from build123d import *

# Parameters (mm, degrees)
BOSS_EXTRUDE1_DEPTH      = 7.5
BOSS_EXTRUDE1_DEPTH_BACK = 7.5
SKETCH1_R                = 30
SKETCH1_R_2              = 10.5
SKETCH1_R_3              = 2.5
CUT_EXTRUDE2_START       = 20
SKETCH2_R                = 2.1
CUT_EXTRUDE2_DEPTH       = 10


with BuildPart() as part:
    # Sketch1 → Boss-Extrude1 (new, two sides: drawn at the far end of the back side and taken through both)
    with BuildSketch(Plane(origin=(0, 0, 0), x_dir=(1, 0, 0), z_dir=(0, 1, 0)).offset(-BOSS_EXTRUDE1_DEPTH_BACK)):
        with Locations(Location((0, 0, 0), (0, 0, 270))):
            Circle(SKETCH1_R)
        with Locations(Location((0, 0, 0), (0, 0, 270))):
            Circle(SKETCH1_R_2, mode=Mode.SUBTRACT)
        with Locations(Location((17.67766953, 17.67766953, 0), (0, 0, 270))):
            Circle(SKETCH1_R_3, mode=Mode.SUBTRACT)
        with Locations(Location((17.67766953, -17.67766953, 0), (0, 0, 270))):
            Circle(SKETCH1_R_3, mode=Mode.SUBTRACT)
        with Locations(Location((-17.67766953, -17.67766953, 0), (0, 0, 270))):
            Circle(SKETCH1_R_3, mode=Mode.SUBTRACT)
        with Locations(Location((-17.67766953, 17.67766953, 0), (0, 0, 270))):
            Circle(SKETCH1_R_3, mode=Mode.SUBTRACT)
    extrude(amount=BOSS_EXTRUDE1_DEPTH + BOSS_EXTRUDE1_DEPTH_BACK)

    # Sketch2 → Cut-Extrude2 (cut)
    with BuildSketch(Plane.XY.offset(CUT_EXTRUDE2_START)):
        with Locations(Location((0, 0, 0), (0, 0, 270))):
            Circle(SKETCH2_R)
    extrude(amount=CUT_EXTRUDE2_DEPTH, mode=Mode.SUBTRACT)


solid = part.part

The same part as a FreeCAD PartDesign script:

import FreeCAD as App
import Part
import Sketcher

V = App.Vector
Q = App.Units.Quantity

doc = App.newDocument("Part")
body = doc.addObject("PartDesign::Body", "Body")

# Sketch on XZ plane
sketch1 = body.newObject("Sketcher::SketchObject", "Sketch")
sketch1.AttachmentSupport = (doc.getObject("XZ_Plane"), [""])
sketch1.MapMode = "FlatFace"
sketch1.addGeometry([
    Part.Circle(V(0, 0, 0), V(0, 0, 1), 30),  # 0
    Part.Circle(V(-17.67767, -17.67767, 0), V(0, 0, 1), 2.5),  # 1
    Part.Circle(V(-17.67767, 17.67767, 0), V(0, 0, 1), 2.5),  # 2
    Part.Circle(V(17.67767, -17.67767, 0), V(0, 0, 1), 2.5),  # 3
    Part.Circle(V(0, 0, 0), V(0, 0, 1), 10.5),  # 4
    Part.Circle(V(17.67767, 17.67767, 0), V(0, 0, 1), 2.5),  # 5
], False)
sketch1.addConstraint([
    Sketcher.Constraint("Coincident", 0, 3, -1, 1),
    Sketcher.Constraint("Coincident", 4, 3, -1, 1),
    Sketcher.Constraint("Equal", 1, 2),
    Sketcher.Constraint("Equal", 2, 3),
    Sketcher.Constraint("Equal", 3, 5),
    Sketcher.Constraint("Symmetric", 2, 3, 3, 3, -1, 1),
    Sketcher.Constraint("Symmetric", 1, 3, 5, 3, -1, 1),
    Sketcher.Constraint("Symmetric", 1, 3, 3, 3, -2),
    Sketcher.Constraint("Diameter", 0, Q("60 mm")),
    Sketcher.Constraint("Diameter", 1, Q("5 mm")),
    Sketcher.Constraint("Diameter", 4, Q("21 mm")),
    Sketcher.Constraint("DistanceX", 1, 3, -1, 1, Q("17.67767 mm")),
    Sketcher.Constraint("DistanceY", 1, 3, -1, 1, Q("17.67767 mm")),
])
pad1 = body.newObject("PartDesign::Pad", "Pad")
pad1.Profile = sketch1
pad1.Type = "TwoLengths"
pad1.Length = 7.5
pad1.Length2 = 7.5
pad1.Reversed = True

# Sketch on XY plane
sketch2 = body.newObject("Sketcher::SketchObject", "Sketch001")
sketch2.AttachmentSupport = (doc.getObject("XY_Plane"), [""])
sketch2.MapMode = "FlatFace"
sketch2.AttachmentOffset = App.Placement(V(0, 0, 20), App.Rotation())
sketch2.addGeometry(Part.Circle(V(0, 0, 0), V(0, 0, 1), 2.1), False)
sketch2.addConstraint([
    Sketcher.Constraint("Coincident", 0, 3, -1, 1),
    Sketcher.Constraint("Diameter", 0, Q("4.2 mm")),
])
pocket1 = body.newObject("PartDesign::Pocket", "Pocket")
pocket1.Profile = sketch2
pocket1.Length = 10
pocket1.Reversed = True

doc.recompute()
